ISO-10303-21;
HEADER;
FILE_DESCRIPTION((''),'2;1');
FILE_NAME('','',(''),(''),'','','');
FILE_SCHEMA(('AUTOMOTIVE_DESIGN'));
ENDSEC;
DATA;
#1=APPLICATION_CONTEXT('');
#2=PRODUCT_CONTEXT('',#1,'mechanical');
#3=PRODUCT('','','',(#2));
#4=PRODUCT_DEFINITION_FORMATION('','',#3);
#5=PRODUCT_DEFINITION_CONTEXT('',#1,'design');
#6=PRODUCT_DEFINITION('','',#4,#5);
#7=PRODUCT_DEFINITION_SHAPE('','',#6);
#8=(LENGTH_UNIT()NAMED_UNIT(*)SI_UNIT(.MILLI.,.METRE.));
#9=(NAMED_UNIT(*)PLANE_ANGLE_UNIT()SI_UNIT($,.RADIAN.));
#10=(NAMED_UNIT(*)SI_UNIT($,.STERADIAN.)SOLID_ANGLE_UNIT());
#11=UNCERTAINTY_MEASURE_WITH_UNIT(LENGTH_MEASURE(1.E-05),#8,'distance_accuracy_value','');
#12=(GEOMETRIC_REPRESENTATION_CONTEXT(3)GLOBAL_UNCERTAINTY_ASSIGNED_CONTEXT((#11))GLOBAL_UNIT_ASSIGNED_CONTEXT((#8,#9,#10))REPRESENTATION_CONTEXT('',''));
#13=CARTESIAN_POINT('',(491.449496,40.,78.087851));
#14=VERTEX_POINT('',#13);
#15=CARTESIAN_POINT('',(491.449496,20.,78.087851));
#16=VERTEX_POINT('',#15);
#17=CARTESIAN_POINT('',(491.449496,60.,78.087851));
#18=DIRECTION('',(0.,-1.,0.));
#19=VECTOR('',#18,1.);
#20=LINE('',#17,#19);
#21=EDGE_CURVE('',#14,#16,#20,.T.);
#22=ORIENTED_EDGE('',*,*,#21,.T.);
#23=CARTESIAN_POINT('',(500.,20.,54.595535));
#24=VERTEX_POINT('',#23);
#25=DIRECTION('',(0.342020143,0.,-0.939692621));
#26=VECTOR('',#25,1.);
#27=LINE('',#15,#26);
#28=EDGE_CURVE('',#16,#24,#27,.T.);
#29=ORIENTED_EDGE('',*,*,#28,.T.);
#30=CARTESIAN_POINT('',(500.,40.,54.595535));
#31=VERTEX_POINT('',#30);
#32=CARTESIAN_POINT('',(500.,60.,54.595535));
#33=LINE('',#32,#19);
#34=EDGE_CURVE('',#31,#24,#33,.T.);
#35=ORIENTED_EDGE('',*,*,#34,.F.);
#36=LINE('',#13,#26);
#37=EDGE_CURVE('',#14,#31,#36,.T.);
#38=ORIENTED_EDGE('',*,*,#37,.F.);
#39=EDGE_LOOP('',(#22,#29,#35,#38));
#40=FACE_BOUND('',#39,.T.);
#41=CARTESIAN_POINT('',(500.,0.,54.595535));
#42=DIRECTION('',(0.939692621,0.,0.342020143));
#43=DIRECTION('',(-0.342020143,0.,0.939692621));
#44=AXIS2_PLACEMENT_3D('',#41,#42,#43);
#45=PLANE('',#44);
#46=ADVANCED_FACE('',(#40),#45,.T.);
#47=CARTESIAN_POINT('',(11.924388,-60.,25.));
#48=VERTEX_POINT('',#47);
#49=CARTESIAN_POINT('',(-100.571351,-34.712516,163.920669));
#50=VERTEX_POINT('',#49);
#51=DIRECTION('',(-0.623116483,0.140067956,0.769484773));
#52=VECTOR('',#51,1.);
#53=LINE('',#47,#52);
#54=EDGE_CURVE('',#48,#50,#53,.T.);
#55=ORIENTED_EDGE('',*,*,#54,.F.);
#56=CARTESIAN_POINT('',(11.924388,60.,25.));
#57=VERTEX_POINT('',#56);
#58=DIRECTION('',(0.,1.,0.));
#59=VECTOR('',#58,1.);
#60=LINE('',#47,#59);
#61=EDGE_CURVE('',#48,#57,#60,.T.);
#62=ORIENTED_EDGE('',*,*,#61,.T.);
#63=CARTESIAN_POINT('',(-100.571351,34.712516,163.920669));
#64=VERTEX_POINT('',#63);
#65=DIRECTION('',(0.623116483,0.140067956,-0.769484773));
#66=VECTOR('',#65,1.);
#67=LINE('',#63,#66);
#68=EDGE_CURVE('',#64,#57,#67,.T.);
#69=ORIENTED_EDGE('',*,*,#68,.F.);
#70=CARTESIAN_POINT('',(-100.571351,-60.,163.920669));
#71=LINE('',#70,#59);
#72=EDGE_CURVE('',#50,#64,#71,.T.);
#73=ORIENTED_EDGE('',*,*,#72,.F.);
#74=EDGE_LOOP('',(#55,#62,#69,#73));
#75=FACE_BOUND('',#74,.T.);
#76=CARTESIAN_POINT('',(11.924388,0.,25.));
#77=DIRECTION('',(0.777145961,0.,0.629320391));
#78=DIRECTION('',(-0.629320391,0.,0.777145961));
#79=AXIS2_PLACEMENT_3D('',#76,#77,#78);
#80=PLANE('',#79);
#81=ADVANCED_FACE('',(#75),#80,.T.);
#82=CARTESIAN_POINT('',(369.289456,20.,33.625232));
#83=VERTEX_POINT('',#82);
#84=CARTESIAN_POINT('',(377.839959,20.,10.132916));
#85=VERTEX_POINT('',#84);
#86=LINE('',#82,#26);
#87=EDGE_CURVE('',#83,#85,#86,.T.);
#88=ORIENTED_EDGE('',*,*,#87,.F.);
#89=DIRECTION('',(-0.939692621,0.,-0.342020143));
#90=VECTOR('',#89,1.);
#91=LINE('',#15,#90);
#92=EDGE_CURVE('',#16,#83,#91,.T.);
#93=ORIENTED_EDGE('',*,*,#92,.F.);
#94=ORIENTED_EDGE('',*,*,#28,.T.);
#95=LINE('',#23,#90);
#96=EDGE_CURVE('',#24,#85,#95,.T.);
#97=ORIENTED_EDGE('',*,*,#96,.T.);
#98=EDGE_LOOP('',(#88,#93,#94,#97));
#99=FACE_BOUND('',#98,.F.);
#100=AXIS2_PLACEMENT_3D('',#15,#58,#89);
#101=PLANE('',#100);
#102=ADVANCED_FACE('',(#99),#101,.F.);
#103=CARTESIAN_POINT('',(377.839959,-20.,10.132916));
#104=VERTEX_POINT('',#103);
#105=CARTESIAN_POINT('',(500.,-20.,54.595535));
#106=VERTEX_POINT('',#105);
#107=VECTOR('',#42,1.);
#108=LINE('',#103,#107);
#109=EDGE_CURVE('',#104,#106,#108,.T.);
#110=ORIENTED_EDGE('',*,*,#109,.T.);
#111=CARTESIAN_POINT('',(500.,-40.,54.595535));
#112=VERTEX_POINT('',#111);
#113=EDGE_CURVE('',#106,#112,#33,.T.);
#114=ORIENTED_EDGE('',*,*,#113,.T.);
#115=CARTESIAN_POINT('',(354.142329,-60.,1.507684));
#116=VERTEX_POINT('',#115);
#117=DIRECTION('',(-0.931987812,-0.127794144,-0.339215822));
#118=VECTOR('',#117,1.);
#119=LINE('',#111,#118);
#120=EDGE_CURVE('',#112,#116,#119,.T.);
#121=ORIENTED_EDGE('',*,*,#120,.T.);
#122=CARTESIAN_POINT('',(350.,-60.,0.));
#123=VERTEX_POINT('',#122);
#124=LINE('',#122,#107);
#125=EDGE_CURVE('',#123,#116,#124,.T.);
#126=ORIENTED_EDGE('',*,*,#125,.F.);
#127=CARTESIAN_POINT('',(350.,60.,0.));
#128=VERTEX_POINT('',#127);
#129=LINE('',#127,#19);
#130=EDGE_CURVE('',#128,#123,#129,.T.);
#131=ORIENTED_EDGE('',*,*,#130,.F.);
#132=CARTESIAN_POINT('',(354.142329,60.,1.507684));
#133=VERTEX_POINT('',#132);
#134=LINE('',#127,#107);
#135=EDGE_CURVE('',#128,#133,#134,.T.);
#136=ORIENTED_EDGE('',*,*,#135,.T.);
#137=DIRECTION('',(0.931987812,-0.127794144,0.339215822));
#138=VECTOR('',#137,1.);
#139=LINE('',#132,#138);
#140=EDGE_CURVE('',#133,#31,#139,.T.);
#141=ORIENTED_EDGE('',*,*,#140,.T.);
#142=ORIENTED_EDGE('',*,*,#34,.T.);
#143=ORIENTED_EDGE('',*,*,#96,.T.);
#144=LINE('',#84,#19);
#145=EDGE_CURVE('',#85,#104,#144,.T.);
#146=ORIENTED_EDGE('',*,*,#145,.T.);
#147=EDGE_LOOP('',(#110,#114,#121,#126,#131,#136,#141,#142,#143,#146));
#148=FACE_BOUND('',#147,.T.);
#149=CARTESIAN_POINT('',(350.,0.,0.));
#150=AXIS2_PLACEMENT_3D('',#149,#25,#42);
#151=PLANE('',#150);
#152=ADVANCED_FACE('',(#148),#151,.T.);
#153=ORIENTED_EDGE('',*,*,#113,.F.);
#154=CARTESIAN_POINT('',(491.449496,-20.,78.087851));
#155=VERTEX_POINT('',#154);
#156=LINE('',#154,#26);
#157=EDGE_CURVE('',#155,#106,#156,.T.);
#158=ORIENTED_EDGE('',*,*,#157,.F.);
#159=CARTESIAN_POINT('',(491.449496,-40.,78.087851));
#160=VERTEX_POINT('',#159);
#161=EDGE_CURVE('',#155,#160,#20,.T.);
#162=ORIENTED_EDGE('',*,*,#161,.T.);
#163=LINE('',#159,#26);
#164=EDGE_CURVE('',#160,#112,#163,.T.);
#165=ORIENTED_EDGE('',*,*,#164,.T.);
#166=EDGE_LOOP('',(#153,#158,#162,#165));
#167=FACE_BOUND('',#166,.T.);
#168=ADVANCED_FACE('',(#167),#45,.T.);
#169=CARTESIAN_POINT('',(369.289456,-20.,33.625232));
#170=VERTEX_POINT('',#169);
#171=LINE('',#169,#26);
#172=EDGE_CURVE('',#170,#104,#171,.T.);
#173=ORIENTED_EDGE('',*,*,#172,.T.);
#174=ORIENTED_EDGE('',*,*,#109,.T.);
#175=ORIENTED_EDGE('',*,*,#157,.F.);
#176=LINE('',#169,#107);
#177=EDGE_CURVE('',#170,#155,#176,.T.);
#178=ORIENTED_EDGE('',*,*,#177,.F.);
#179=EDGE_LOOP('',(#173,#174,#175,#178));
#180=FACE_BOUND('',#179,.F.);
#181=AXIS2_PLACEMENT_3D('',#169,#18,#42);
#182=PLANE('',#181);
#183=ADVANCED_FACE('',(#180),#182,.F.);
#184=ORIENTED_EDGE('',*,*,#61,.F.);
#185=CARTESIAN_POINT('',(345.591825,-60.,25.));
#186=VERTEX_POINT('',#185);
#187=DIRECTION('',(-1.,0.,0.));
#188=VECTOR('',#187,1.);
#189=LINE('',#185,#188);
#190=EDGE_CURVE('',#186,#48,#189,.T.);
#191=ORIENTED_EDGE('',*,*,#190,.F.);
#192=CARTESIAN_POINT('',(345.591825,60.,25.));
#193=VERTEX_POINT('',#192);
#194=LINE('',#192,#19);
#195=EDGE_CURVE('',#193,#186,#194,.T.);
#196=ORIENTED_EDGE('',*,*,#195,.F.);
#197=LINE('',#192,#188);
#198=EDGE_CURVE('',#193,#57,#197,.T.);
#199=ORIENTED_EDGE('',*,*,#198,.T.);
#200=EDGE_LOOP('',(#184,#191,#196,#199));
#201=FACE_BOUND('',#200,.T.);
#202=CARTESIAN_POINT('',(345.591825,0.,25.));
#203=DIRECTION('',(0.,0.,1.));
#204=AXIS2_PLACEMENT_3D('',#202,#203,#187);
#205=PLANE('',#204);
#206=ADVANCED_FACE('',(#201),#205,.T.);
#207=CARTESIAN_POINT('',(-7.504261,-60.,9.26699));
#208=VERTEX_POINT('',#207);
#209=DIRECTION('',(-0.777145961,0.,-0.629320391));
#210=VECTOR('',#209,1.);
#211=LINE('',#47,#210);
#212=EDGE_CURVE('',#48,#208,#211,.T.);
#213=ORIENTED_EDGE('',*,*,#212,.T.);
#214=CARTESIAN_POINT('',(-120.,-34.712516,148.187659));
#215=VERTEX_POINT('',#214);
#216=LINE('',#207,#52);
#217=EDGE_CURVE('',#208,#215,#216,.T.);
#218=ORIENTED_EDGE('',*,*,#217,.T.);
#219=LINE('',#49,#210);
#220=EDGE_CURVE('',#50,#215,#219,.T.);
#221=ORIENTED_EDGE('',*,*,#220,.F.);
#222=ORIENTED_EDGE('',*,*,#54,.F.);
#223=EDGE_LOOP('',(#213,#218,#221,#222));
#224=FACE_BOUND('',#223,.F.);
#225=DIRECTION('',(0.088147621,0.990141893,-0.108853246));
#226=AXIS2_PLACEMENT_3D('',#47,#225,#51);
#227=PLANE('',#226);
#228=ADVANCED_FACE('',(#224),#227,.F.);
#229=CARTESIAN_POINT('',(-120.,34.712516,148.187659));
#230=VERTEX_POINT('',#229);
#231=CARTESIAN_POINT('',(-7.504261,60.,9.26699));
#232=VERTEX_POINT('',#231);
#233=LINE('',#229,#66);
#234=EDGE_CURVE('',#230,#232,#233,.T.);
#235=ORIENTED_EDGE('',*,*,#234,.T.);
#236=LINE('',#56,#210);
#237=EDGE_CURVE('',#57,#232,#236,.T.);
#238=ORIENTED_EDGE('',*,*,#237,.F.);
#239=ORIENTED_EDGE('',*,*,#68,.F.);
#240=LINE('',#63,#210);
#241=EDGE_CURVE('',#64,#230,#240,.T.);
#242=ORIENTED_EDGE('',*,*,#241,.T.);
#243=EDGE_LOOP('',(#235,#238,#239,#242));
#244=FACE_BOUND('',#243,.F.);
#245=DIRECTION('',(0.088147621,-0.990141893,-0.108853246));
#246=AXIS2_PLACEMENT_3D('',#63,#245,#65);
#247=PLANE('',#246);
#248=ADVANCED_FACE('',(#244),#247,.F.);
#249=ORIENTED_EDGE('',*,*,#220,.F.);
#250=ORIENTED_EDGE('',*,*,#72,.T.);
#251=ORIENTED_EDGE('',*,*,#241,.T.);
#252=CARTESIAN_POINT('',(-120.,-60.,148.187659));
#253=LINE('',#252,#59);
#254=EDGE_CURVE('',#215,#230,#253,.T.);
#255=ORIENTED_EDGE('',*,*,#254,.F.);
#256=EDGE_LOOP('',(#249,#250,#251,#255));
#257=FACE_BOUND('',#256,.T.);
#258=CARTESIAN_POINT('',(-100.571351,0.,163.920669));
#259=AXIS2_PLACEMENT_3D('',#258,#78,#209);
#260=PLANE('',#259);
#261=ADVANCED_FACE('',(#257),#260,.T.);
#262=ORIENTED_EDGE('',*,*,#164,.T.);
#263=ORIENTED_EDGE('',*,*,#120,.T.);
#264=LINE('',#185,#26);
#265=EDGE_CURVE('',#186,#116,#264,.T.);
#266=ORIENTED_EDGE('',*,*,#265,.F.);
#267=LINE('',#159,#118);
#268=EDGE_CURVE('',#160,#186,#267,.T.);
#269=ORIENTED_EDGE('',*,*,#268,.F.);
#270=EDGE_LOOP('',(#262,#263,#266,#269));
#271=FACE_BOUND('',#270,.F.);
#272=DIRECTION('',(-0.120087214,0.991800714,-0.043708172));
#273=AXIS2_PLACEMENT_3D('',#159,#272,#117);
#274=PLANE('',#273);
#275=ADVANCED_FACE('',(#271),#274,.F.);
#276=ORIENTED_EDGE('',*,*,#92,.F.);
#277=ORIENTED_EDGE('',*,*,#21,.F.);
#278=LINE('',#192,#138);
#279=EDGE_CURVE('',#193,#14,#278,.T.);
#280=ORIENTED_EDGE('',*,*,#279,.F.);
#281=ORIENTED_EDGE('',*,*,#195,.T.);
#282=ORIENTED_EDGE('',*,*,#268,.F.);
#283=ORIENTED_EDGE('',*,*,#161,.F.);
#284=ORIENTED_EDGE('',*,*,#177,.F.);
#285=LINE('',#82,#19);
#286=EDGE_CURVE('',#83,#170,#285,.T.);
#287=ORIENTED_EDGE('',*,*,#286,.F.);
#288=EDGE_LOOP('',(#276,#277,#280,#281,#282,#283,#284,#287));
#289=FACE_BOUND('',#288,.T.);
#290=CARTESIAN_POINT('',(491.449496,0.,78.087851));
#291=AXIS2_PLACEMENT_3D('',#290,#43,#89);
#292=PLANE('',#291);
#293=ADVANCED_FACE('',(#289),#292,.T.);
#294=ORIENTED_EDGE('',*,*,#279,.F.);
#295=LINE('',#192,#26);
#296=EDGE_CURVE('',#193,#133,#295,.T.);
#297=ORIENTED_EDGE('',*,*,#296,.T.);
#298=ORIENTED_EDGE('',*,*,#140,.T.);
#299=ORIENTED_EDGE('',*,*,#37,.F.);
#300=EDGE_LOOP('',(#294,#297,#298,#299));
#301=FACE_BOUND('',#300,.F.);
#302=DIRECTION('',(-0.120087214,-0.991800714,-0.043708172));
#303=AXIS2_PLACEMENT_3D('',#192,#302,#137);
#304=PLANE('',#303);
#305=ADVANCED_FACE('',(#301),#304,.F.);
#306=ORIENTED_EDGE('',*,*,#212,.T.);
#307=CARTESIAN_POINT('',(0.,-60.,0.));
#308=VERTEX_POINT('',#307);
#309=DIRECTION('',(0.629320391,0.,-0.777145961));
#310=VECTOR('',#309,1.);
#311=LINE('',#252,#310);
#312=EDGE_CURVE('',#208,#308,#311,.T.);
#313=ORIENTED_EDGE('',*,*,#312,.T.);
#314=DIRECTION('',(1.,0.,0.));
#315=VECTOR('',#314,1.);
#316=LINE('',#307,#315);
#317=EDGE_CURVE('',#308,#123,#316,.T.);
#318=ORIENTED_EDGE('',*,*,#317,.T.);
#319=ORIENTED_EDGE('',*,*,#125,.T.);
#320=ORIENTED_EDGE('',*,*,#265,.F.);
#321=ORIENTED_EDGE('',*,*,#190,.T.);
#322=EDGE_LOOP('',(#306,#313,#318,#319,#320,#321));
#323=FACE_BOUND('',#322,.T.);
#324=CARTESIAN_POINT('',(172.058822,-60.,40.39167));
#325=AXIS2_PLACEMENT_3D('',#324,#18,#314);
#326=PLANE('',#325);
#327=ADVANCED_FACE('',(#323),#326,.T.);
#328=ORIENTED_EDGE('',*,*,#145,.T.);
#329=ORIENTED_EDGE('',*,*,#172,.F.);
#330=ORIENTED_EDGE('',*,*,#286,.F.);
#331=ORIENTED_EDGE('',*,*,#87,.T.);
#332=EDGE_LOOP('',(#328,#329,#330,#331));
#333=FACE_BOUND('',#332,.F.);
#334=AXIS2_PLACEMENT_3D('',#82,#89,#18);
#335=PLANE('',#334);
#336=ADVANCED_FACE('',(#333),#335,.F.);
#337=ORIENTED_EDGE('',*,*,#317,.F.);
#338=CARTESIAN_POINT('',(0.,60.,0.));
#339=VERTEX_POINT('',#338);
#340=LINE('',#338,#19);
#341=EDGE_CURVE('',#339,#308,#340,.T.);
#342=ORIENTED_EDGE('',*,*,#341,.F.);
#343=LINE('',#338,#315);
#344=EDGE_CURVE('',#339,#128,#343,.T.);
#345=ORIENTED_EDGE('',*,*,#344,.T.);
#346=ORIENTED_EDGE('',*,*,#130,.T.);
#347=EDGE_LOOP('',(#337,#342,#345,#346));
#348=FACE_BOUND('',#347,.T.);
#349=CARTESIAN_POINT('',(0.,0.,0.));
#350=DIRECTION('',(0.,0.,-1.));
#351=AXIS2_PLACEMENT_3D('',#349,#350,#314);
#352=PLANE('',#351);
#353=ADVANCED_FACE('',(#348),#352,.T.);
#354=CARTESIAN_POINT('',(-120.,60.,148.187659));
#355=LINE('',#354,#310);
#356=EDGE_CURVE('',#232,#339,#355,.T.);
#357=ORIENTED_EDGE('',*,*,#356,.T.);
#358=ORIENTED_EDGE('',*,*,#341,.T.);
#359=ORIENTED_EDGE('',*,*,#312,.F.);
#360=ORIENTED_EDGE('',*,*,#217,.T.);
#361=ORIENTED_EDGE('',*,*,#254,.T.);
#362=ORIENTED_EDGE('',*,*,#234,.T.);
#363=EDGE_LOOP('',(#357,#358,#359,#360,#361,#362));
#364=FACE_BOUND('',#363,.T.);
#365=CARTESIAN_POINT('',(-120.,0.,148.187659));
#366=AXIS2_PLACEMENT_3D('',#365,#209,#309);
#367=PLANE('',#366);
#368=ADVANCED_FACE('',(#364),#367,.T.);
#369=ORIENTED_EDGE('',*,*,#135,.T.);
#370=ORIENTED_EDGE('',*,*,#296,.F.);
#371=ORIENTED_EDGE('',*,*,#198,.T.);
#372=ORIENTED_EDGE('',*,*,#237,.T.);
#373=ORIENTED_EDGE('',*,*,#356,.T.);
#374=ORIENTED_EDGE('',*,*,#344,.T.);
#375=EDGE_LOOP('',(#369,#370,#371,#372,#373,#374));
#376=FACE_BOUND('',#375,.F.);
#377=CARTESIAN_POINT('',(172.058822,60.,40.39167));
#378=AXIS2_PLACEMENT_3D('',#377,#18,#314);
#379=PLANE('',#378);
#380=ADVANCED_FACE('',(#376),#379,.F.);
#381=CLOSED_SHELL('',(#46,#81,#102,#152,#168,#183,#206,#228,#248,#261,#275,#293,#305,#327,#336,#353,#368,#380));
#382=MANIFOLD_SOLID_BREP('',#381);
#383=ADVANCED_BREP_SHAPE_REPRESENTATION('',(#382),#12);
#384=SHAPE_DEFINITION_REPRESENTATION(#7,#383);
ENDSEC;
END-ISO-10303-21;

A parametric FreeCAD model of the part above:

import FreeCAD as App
import Part
import Sketcher
Q = App.Units.Quantity


def add_polygon(sketch, points):
    """Adds a closed chain of lines whose ends are joined by coincident constraints."""
    first, n = sketch.GeometryCount, len(points)
    for a, b in zip(points, points[1:] + points[:1]):
        sketch.addGeometry(Part.LineSegment(App.Vector(*a, 0), App.Vector(*b, 0)), False)
    for i in range(n):
        sketch.addConstraint(Sketcher.Constraint("Coincident", first + i, 2, first + (i + 1) % n, 1))

doc = App.newDocument("Part")
body = doc.addObject("PartDesign::Body", "Body")

sketch1 = body.newObject("Sketcher::SketchObject", "Sketch")
sketch1.AttachmentSupport = (doc.getObject("XZ_Plane"), [""])
sketch1.MapMode = "FlatFace"
add_polygon(sketch1, [(-120, 148), (0, 0), (350, 0), (500, 55), (491, 78), (346, 25), (12, 25), (-101, 164)])
sketch1.addConstraint([
    Sketcher.Constraint("Horizontal", 1),
    Sketcher.Constraint("Horizontal", 5),
    Sketcher.Constraint("Coincident", 0, 2, -1, 1),
    Sketcher.Constraint("Perpendicular", 2, 3),
    Sketcher.Constraint("Perpendicular", 3, 4),
    Sketcher.Constraint("Parallel", 0, 6),
    Sketcher.Constraint("Perpendicular", 6, 7),
    Sketcher.Constraint("Equal", 3, 7),
    Sketcher.Constraint("DistanceX", 1, 1, 1, 2, Q("350 mm")),
    Sketcher.Constraint("Angle", 0, Q("-51 deg")),
    Sketcher.Constraint("Angle", 2, Q("20 deg")),
    Sketcher.Constraint("Distance", 3, Q("25 mm")),
    Sketcher.Constraint("DistanceX", -1, 1, 2, 2, Q("500 mm")),
    Sketcher.Constraint("DistanceY", -1, 1, 4, 2, Q("25 mm")),
    Sketcher.Constraint("DistanceX", 7, 2, -1, 1, Q("120 mm")),
])
pad1 = body.newObject("PartDesign::Pad", "Pad")
pad1.Profile = sketch1
pad1.Length = 120
pad1.Midplane = True

sketch2 = body.newObject("Sketcher::SketchObject", "Sketch001")
sketch2.Placement = App.Placement(App.Vector(19.428649, 0, 15.73301), App.Rotation(App.Vector(0, 1, 0), App.Vector(-0.629320391, 0, 0.777145961), App.Vector(0.777145961, 0, 0.629320391), "ZXY"))
add_polygon(sketch2, [(-60, 191), (-60, 12), (-35, 191)])
add_polygon(sketch2, [(35, 191), (60, 12), (60, 191)])
sketch2.addConstraint([
    Sketcher.Constraint("Vertical", 0),
    Sketcher.Constraint("Horizontal", 2),
    Sketcher.Constraint("Vertical", 4),
    Sketcher.Constraint("Horizontal", 5),
    Sketcher.Constraint("Symmetric", 0, 2, 3, 2, -2),
    Sketcher.Constraint("Symmetric", 1, 2, 5, 2, -2),
    Sketcher.Constraint("DistanceX", 0, 2, -1, 1, Q("60 mm")),
    Sketcher.Constraint("DistanceY", 0, 2, 0, 1, Q("178.757499 mm")),
    Sketcher.Constraint("DistanceX", 2, 2, 2, 1, Q("25.287484 mm")),
    Sketcher.Constraint("DistanceY", -1, 1, 0, 2, Q("11.924388 mm")),
])
pocket1 = body.newObject("PartDesign::Pocket", "Pocket")
pocket1.Profile = sketch2
pocket1.Length = 25

sketch3 = body.newObject("Sketcher::SketchObject", "Sketch002")
sketch3.Placement = App.Placement(App.Vector(32.391719, 0, -88.995516), App.Rotation(App.Vector(0.939692621, 0, 0.342020143), App.Vector(0, 1, 0), App.Vector(-0.342020143, 0, 0.939692621), "ZXY"))
add_polygon(sketch3, [(489, 60), (333, 60), (489, 40)])
add_polygon(sketch3, [(359, -20), (489, -20), (489, 20), (359, 20)])
add_polygon(sketch3, [(489, -40), (333, -60), (489, -60)])
sketch3.addConstraint([
    Sketcher.Constraint("Horizontal", 0),
    Sketcher.Constraint("Vertical", 2),
    Sketcher.Constraint("Horizontal", 3),
    Sketcher.Constraint("Vertical", 4),
    Sketcher.Constraint("Horizontal", 5),
    Sketcher.Constraint("Vertical", 6),
    Sketcher.Constraint("Horizontal", 8),
    Sketcher.Constraint("Vertical", 9),
    Sketcher.Constraint("Symmetric", 0, 2, 7, 2, -1),
    Sketcher.Constraint("Symmetric", 1, 2, 9, 2, -1),
    Sketcher.Constraint("Vertical", 2, 2, 3, 2),
    Sketcher.Constraint("DistanceX", 3, 1, 3, 2, Q("130 mm")),
    Sketcher.Constraint("DistanceY", 2, 1, 2, 2, Q("20 mm")),
    Sketcher.Constraint("DistanceY", 4, 1, 4, 2, Q("40 mm")),
    Sketcher.Constraint("DistanceY", -1, 1, 0, 2, Q("60 mm")),
    Sketcher.Constraint("DistanceY", 3, 2, -1, 1, Q("20 mm")),
    Sketcher.Constraint("DistanceX", 0, 2, 0, 1, Q("155.218491 mm")),
    Sketcher.Constraint("DistanceX", -1, 1, 0, 2, Q("333.300592 mm")),
])
pocket2 = body.newObject("PartDesign::Pocket", "Pocket001")
pocket2.Profile = sketch3
pocket2.Length = 25

doc.recompute()
